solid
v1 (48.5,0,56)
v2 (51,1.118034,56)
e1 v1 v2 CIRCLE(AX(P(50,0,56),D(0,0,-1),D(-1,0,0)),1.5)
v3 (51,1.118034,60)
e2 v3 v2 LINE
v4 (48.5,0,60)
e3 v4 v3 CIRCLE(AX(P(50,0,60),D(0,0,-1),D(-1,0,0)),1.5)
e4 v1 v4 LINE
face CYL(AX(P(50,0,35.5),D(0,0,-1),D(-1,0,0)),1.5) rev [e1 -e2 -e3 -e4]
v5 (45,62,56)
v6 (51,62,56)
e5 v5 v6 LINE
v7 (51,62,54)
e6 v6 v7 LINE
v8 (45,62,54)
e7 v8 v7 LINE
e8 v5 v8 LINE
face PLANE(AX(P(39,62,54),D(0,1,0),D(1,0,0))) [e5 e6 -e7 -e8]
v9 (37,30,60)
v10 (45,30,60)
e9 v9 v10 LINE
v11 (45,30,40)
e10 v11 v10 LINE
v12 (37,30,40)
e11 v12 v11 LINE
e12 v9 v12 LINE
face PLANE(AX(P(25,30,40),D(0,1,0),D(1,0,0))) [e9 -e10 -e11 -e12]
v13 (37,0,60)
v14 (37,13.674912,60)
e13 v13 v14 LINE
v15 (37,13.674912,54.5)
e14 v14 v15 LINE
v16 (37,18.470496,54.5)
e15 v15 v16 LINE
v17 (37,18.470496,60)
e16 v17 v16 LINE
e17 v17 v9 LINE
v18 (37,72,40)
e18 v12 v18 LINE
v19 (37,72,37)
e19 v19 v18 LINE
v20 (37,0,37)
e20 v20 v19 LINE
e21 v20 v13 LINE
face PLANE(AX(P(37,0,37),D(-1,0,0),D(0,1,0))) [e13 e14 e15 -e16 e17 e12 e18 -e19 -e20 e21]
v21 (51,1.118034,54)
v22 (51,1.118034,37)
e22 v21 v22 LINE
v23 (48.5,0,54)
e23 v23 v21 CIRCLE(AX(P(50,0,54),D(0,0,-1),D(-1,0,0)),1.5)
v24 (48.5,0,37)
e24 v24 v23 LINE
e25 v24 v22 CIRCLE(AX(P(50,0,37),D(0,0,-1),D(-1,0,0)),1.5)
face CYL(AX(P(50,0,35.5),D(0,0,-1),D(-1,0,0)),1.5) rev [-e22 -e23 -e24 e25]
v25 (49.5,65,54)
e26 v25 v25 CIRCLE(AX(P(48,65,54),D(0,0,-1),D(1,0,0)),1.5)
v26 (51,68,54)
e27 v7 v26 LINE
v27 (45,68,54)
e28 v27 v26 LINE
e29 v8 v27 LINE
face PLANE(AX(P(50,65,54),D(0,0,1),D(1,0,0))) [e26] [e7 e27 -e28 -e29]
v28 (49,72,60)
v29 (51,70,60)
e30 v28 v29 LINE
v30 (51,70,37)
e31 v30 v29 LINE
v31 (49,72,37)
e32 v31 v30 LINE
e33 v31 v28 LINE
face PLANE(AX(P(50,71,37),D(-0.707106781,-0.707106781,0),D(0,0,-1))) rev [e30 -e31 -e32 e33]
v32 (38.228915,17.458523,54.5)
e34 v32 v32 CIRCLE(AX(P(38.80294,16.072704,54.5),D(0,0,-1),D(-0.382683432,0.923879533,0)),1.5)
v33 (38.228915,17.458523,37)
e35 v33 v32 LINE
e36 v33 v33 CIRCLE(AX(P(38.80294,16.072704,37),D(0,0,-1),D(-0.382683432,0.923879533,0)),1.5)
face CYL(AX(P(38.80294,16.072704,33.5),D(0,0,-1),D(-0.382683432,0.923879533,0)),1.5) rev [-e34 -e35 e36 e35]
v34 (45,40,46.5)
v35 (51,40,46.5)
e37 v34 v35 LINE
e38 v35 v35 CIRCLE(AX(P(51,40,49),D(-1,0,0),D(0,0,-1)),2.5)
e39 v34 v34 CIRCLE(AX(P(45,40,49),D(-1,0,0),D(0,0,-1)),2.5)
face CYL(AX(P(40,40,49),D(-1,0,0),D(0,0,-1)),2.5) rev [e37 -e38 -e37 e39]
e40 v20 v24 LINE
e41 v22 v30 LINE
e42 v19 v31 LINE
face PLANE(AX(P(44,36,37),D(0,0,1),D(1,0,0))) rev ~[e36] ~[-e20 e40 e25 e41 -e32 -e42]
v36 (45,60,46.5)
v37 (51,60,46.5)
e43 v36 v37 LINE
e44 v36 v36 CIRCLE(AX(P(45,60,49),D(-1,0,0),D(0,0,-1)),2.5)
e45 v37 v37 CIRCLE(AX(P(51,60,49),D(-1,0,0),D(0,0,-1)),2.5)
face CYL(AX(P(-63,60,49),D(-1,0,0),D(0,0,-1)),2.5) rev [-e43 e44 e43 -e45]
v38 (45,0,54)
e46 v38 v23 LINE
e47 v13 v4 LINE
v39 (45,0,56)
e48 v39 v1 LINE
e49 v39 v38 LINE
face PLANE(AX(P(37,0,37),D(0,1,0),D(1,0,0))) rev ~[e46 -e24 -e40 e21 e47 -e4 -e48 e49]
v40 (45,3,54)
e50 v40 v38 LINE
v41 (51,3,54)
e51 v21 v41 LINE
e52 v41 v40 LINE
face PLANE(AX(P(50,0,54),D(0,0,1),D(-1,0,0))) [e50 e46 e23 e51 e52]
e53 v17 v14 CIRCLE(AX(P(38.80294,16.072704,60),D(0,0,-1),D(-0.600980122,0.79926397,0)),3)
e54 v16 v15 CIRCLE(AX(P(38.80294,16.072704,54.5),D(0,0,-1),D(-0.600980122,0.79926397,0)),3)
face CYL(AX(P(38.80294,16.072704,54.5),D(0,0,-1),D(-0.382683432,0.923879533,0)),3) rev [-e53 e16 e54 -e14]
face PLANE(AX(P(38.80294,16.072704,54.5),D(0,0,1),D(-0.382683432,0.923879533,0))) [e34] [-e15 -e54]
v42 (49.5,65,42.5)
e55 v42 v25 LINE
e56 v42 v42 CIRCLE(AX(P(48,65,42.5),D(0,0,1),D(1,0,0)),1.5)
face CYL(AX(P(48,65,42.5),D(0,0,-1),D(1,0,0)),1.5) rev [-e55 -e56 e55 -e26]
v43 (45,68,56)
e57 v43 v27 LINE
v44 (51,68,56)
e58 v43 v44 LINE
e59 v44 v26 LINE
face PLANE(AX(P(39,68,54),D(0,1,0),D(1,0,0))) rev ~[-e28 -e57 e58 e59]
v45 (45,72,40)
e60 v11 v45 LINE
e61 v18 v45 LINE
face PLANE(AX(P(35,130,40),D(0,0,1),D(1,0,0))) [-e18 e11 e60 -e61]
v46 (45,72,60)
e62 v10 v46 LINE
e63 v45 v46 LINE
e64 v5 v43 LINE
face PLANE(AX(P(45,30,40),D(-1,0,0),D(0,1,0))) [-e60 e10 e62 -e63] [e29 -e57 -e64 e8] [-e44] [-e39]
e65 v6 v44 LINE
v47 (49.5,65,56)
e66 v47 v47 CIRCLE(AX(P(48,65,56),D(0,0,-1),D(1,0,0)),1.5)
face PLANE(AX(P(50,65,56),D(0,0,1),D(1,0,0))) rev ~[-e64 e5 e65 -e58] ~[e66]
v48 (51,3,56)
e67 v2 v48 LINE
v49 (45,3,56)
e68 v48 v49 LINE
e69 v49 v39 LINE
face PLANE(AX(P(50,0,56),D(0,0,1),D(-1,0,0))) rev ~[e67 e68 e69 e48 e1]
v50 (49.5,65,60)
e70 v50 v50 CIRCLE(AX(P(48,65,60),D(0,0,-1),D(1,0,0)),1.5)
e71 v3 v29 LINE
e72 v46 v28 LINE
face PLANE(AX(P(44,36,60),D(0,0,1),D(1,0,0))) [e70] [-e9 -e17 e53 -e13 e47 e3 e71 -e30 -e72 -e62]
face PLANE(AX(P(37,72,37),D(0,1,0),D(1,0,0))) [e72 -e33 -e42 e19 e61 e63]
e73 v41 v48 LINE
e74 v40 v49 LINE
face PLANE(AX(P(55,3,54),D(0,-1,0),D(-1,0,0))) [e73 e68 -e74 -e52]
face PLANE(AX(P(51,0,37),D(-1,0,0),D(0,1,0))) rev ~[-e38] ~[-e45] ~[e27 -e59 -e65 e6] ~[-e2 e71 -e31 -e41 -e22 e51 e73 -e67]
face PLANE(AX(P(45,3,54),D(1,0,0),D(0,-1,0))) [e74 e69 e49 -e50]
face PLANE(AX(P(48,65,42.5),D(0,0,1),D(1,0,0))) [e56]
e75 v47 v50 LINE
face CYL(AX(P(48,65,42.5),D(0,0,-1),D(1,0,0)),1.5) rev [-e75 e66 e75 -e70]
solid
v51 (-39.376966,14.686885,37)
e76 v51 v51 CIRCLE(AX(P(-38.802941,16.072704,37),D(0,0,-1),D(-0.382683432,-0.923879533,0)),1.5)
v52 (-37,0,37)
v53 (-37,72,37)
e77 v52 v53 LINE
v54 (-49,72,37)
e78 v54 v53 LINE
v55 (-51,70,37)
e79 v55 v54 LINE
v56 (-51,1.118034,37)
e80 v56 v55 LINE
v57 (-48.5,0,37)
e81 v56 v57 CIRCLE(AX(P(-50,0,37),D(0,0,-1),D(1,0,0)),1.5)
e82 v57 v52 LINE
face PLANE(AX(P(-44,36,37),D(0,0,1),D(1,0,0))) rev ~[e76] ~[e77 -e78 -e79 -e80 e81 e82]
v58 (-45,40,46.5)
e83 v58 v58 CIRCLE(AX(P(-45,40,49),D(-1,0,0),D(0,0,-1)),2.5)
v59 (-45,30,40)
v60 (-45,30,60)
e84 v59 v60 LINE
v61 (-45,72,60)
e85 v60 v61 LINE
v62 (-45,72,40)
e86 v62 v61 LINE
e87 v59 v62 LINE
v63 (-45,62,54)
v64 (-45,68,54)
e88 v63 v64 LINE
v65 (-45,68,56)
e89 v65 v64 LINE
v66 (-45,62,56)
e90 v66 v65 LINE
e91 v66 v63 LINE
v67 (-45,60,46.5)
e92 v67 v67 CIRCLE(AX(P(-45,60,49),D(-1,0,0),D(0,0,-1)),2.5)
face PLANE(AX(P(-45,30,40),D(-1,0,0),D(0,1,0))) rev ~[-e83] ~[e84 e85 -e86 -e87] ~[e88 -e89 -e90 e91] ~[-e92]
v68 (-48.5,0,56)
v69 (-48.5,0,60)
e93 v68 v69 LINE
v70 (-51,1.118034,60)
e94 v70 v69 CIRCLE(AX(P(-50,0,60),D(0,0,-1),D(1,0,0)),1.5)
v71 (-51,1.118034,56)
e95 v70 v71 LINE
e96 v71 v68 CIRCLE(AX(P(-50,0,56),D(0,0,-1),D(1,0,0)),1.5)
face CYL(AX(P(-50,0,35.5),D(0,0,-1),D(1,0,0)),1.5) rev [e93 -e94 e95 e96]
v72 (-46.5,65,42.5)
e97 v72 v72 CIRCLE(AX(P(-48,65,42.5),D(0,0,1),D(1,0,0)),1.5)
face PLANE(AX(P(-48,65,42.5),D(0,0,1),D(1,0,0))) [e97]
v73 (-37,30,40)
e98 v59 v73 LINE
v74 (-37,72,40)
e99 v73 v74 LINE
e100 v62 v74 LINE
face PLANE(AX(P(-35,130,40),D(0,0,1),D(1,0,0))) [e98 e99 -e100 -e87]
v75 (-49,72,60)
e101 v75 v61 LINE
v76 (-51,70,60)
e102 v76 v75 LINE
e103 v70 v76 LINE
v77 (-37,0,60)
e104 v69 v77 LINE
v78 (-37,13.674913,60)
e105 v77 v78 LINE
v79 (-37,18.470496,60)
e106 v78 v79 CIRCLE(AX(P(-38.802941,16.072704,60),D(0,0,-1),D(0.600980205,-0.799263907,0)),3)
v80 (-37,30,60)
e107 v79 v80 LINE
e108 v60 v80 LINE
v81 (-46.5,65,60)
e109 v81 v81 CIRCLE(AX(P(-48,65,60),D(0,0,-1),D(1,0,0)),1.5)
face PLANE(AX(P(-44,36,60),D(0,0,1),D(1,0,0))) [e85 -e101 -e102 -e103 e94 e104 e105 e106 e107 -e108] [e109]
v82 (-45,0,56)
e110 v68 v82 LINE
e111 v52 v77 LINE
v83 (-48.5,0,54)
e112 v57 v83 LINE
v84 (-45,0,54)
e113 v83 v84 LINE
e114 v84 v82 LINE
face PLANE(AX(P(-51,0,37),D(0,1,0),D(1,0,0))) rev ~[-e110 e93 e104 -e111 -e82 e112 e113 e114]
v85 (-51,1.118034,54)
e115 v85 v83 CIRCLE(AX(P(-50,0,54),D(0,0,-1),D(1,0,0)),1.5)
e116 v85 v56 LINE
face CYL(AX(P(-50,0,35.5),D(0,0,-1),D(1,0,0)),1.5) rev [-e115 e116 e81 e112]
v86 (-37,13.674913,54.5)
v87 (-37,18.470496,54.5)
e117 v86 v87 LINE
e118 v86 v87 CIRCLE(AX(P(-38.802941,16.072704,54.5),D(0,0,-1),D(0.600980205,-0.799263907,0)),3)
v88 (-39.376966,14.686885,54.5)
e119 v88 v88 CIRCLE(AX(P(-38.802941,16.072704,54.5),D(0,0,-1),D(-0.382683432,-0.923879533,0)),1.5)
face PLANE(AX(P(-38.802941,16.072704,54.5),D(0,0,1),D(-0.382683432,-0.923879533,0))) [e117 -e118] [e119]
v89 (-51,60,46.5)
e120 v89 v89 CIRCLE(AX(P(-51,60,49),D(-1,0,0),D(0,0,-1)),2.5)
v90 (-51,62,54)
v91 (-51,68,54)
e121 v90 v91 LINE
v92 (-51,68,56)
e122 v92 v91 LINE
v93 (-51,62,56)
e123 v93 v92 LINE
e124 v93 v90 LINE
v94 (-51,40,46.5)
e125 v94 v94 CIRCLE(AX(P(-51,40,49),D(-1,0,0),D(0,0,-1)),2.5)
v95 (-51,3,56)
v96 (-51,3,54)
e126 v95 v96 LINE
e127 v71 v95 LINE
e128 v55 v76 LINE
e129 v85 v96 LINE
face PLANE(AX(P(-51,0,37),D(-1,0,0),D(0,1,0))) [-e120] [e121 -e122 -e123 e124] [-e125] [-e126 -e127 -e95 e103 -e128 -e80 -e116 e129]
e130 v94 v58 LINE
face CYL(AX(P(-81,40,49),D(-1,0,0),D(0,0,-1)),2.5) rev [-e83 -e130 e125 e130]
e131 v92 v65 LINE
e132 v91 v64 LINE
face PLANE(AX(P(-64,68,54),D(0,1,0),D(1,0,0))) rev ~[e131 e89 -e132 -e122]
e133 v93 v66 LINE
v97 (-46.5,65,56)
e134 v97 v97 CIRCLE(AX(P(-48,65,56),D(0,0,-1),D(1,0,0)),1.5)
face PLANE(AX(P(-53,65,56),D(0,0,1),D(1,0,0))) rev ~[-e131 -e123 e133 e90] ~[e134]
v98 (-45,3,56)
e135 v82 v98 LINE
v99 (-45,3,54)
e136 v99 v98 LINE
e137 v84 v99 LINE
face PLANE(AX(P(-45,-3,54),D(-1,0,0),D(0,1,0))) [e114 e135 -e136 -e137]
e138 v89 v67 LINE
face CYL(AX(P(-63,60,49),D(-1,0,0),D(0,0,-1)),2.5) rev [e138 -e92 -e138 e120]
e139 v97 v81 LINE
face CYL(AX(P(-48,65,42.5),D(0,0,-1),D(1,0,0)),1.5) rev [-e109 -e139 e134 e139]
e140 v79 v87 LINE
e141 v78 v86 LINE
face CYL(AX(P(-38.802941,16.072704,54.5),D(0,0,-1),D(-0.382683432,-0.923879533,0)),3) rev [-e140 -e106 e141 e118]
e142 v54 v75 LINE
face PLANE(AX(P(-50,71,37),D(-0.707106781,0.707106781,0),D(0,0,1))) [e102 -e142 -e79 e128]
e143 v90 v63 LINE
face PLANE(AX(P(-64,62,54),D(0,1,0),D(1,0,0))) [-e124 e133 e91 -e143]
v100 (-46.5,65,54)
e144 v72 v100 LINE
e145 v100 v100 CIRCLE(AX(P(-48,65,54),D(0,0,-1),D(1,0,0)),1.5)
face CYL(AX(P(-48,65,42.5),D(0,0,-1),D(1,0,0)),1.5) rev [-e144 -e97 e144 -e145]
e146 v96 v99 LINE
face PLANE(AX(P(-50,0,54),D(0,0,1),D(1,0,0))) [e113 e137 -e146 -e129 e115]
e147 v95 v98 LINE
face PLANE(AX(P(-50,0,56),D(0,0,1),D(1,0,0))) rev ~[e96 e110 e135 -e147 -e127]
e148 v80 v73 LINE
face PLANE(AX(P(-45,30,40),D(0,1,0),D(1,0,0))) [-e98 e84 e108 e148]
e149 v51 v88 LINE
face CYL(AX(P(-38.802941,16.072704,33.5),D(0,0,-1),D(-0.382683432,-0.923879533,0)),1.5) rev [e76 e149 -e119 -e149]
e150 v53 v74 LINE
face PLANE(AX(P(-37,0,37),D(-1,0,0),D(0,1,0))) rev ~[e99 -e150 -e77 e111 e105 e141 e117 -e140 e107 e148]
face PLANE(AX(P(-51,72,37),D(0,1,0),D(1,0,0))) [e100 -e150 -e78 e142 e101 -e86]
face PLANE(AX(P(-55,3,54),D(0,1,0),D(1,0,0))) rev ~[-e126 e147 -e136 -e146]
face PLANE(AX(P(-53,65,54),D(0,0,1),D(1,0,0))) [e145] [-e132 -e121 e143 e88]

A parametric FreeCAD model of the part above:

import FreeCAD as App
import Part
import Sketcher

V = App.Vector
Q = App.Units.Quantity


def edges_at(feature, points):
    """Names of the edges that pass closest to the given points."""
    edges = feature.Shape.Edges
    near = lambda p: min(range(len(edges)), key=lambda i: edges[i].distToShape(Part.Vertex(*p))[0])
    return sorted({f"Edge{near(p) + 1}" for p in points})


def add_polygon(sketch, points):
    """Adds a closed chain of lines whose ends are joined by coincident constraints."""
    first, n = sketch.GeometryCount, len(points)
    for a, b in zip(points, points[1:] + points[:1]):
        sketch.addGeometry(Part.LineSegment(App.Vector(*a, 0), App.Vector(*b, 0)), False)
    for i in range(n):
        sketch.addConstraint(Sketcher.Constraint("Coincident", first + i, 2, first + (i + 1) % n, 1))

doc = App.newDocument("Part")
body = doc.addObject("PartDesign::Body", "Body")

# Sketch on XY plane
sketch1 = doc.addObject("Sketcher::SketchObject", "Sketch")
body.addObject(sketch1)
sketch1.AttachmentSupport = (doc.XY_Plane, [""])
sketch1.MapMode = "FlatFace"
sketch1.AttachmentOffset = App.Placement(V(0, 0, 54), App.Rotation())
add_polygon(sketch1, [(55, -3), (55, 3), (45, 3), (45, -3)])  # lines 0-3
sketch1.addConstraint(Sketcher.Constraint("Vertical", 0))
sketch1.addConstraint(Sketcher.Constraint("Horizontal", 1))
sketch1.addConstraint(Sketcher.Constraint("Vertical", 2))
sketch1.addConstraint(Sketcher.Constraint("Horizontal", 3))
sketch1.addConstraint(Sketcher.Constraint("DistanceX", 1, 2, 1, 1, Q("10 mm")))
sketch1.addConstraint(Sketcher.Constraint("DistanceY", 0, 1, 0, 2, Q("6 mm")))
sketch1.addConstraint(Sketcher.Constraint("DistanceX", -1, 1, 0, 2, Q("55 mm")))
sketch1.addConstraint(Sketcher.Constraint("DistanceY", -1, 1, 0, 2, Q("3 mm")))
pad1 = doc.addObject("PartDesign::Pad", "Pad")
body.addObject(pad1)
pad1.Profile = sketch1
pad1.Length = 2
body2 = doc.addObject("PartDesign::Body", "Body001")

# Sketch on XY plane
sketch2 = doc.addObject("Sketcher::SketchObject", "Sketch001")
body2.addObject(sketch2)
sketch2.AttachmentSupport = (doc.getObject("XY_Plane001"), [""])
sketch2.MapMode = "FlatFace"
sketch2.AttachmentOffset = App.Placement(V(0, 0, 54), App.Rotation())
add_polygon(sketch2, [(-3, -55), (3, -55), (3, -45), (-3, -45)])  # lines 0-3
sketch2.addConstraint(Sketcher.Constraint("Horizontal", 0))
sketch2.addConstraint(Sketcher.Constraint("Vertical", 1))
sketch2.addConstraint(Sketcher.Constraint("Horizontal", 2))
sketch2.addConstraint(Sketcher.Constraint("Vertical", 3))
sketch2.addConstraint(Sketcher.Constraint("DistanceX", 0, 1, 0, 2, Q("6 mm")))
sketch2.addConstraint(Sketcher.Constraint("DistanceY", 1, 1, 1, 2, Q("10 mm")))
sketch2.addConstraint(Sketcher.Constraint("DistanceX", -1, 1, 0, 2, Q("3 mm")))
sketch2.addConstraint(Sketcher.Constraint("DistanceY", 0, 2, -1, 1, Q("55 mm")))
pad2 = doc.addObject("PartDesign::Pad", "Pad001")
body2.addObject(pad2)
pad2.Profile = sketch2
pad2.Length = 2
body3 = doc.addObject("PartDesign::Body", "Body002")

# Sketch on XY plane
sketch3 = doc.addObject("Sketcher::SketchObject", "Sketch002")
body3.addObject(sketch3)
sketch3.AttachmentSupport = (doc.getObject("XY_Plane002"), [""])
sketch3.MapMode = "FlatFace"
sketch3.AttachmentOffset = App.Placement(V(0, 0, 54), App.Rotation())
add_polygon(sketch3, [(-55, 3), (-55, -3), (-45, -3), (-45, 3)])  # lines 0-3
sketch3.addConstraint(Sketcher.Constraint("Vertical", 0))
sketch3.addConstraint(Sketcher.Constraint("Horizontal", 1))
sketch3.addConstraint(Sketcher.Constraint("Vertical", 2))
sketch3.addConstraint(Sketcher.Constraint("Horizontal", 3))
sketch3.addConstraint(Sketcher.Constraint("DistanceX", 1, 1, 1, 2, Q("10 mm")))
sketch3.addConstraint(Sketcher.Constraint("DistanceY", 0, 2, 0, 1, Q("6 mm")))
sketch3.addConstraint(Sketcher.Constraint("DistanceX", 0, 2, -1, 1, Q("55 mm")))
sketch3.addConstraint(Sketcher.Constraint("DistanceY", 0, 2, -1, 1, Q("3 mm")))
pad3 = doc.addObject("PartDesign::Pad", "Pad002")
body3.addObject(pad3)
pad3.Profile = sketch3
pad3.Length = 2
body4 = doc.addObject("PartDesign::Body", "Body003")
body4.AllowCompound = True

# Sketch on XY plane
sketch4 = doc.addObject("Sketcher::SketchObject", "Sketch003")
body4.addObject(sketch4)
sketch4.AttachmentSupport = (doc.getObject("XY_Plane003"), [""])
sketch4.MapMode = "FlatFace"
sketch4.AttachmentOffset = App.Placement(V(0, 0, 54), App.Rotation())
add_polygon(sketch4, [(3, 55), (-3, 55), (-3, 45), (3, 45)])  # lines 0-3
sketch4.addConstraint(Sketcher.Constraint("Horizontal", 0))
sketch4.addConstraint(Sketcher.Constraint("Vertical", 1))
sketch4.addConstraint(Sketcher.Constraint("Horizontal", 2))
sketch4.addConstraint(Sketcher.Constraint("Vertical", 3))
sketch4.addConstraint(Sketcher.Constraint("DistanceX", 0, 2, 0, 1, Q("6 mm")))
sketch4.addConstraint(Sketcher.Constraint("DistanceY", 1, 2, 1, 1, Q("10 mm")))
sketch4.addConstraint(Sketcher.Constraint("DistanceX", 0, 2, -1, 1, Q("3 mm")))
sketch4.addConstraint(Sketcher.Constraint("DistanceY", -1, 1, 0, 2, Q("55 mm")))
pad4 = doc.addObject("PartDesign::Pad", "Pad003")
body4.addObject(pad4)
pad4.Profile = sketch4
pad4.Length = 2
doc.recompute()

boolean = doc.addObject("PartDesign::Boolean", "Boolean")
body4.addObject(boolean)
boolean.Type = "Fuse"
boolean.addObjects([body])
doc.recompute()

boolean2 = doc.addObject("PartDesign::Boolean", "Boolean001")
body4.addObject(boolean2)
boolean2.Type = "Fuse"
boolean2.addObjects([body2])
doc.recompute()

boolean3 = doc.addObject("PartDesign::Boolean", "Boolean002")
body4.addObject(boolean3)
boolean3.Type = "Fuse"
boolean3.addObjects([body3])
body5 = doc.addObject("PartDesign::Body", "Body004")

# Sketch on XY plane
sketch5 = doc.addObject("Sketcher::SketchObject", "Sketch004")
body5.addObject(sketch5)
sketch5.AttachmentSupport = (doc.getObject("XY_Plane004"), [""])
sketch5.MapMode = "FlatFace"
sketch5.AttachmentOffset = App.Placement(V(0, 0, 35.5), App.Rotation())
sketch5.addGeometry(Part.Circle(V(50, 0, 0), V(0, 0, 1), 1.5), False)
sketch5.addConstraint(Sketcher.Constraint("PointOnObject", 0, 3, -1))
sketch5.addConstraint(Sketcher.Constraint("Diameter", 0, Q("3 mm")))
sketch5.addConstraint(Sketcher.Constraint("DistanceX", -1, 1, 0, 3, Q("50 mm")))
pad5 = doc.addObject("PartDesign::Pad", "Pad004")
body5.addObject(pad5)
pad5.Profile = sketch5
pad5.Length = 30
body6 = doc.addObject("PartDesign::Body", "Body005")

# Sketch on XY plane
sketch6 = doc.addObject("Sketcher::SketchObject", "Sketch005")
body6.addObject(sketch6)
sketch6.AttachmentSupport = (doc.getObject("XY_Plane005"), [""])
sketch6.MapMode = "FlatFace"
sketch6.AttachmentOffset = App.Placement(V(0, 0, 35.5), App.Rotation())
sketch6.addGeometry(Part.Circle(V(0, -50, 0), V(0, 0, 1), 1.5), False)
sketch6.addConstraint(Sketcher.Constraint("PointOnObject", 0, 3, -2))
sketch6.addConstraint(Sketcher.Constraint("Diameter", 0, Q("3 mm")))
sketch6.addConstraint(Sketcher.Constraint("DistanceY", 0, 3, -1, 1, Q("50 mm")))
pad6 = doc.addObject("PartDesign::Pad", "Pad005")
body6.addObject(pad6)
pad6.Profile = sketch6
pad6.Length = 30
body7 = doc.addObject("PartDesign::Body", "Body006")

# Sketch on XY plane
sketch7 = doc.addObject("Sketcher::SketchObject", "Sketch006")
body7.addObject(sketch7)
sketch7.AttachmentSupport = (doc.getObject("XY_Plane006"), [""])
sketch7.MapMode = "FlatFace"
sketch7.AttachmentOffset = App.Placement(V(0, 0, 35.5), App.Rotation())
sketch7.addGeometry(Part.Circle(V(-50, 0, 0), V(0, 0, 1), 1.5), False)
sketch7.addConstraint(Sketcher.Constraint("PointOnObject", 0, 3, -1))
sketch7.addConstraint(Sketcher.Constraint("Diameter", 0, Q("3 mm")))
sketch7.addConstraint(Sketcher.Constraint("DistanceX", 0, 3, -1, 1, Q("50 mm")))
pad7 = doc.addObject("PartDesign::Pad", "Pad006")
body7.addObject(pad7)
pad7.Profile = sketch7
pad7.Length = 30
body8 = doc.addObject("PartDesign::Body", "Body007")
body8.AllowCompound = True

# Sketch on XY plane
sketch8 = doc.addObject("Sketcher::SketchObject", "Sketch007")
body8.addObject(sketch8)
sketch8.AttachmentSupport = (doc.getObject("XY_Plane007"), [""])
sketch8.MapMode = "FlatFace"
sketch8.AttachmentOffset = App.Placement(V(0, 0, 35.5), App.Rotation())
sketch8.addGeometry(Part.Circle(V(0, 50, 0), V(0, 0, 1), 1.5), False)
sketch8.addConstraint(Sketcher.Constraint("PointOnObject", 0, 3, -2))
sketch8.addConstraint(Sketcher.Constraint("Diameter", 0, Q("3 mm")))
sketch8.addConstraint(Sketcher.Constraint("DistanceY", -1, 1, 0, 3, Q("50 mm")))
pad8 = doc.addObject("PartDesign::Pad", "Pad007")
body8.addObject(pad8)
pad8.Profile = sketch8
pad8.Length = 30
doc.recompute()

boolean4 = doc.addObject("PartDesign::Boolean", "Boolean003")
body8.addObject(boolean4)
boolean4.Type = "Fuse"
boolean4.addObjects([body5])
doc.recompute()

boolean5 = doc.addObject("PartDesign::Boolean", "Boolean004")
body8.addObject(boolean5)
boolean5.Type = "Fuse"
boolean5.addObjects([body6])
doc.recompute()

boolean6 = doc.addObject("PartDesign::Boolean", "Boolean005")
body8.addObject(boolean6)
boolean6.Type = "Fuse"
boolean6.addObjects([body7])
body9 = doc.addObject("PartDesign::Body", "Body008")

# Sketch on XY plane
sketch9 = doc.addObject("Sketcher::SketchObject", "Sketch008")
body9.addObject(sketch9)
sketch9.AttachmentSupport = (doc.getObject("XY_Plane008"), [""])
sketch9.MapMode = "FlatFace"
sketch9.addGeometry(Part.Circle(V(0, 0, 0), V(0, 0, 1), 1.5), False)
sketch9.addConstraint(Sketcher.Constraint("Coincident", 0, 3, -1, 1))
sketch9.addConstraint(Sketcher.Constraint("Diameter", 0, Q("3 mm")))
pad9 = doc.addObject("PartDesign::Pad", "Pad008")
body9.addObject(pad9)
pad9.Profile = sketch9
pad9.Length = 40
body10 = doc.addObject("PartDesign::Body", "Body009")
doc.recompute()

body9.Placement = App.Placement(V(29.698485, -29.698485, 33.5), App.Rotation(V(0, 0, 1), 45))
boolean7 = doc.addObject("PartDesign::Boolean", "Boolean006")
body10.addObject(boolean7)
boolean7.Type = "Fuse"
boolean7.addObjects([body9])
body11 = doc.addObject("PartDesign::Body", "Body010")

# Sketch on XY plane
sketch10 = doc.addObject("Sketcher::SketchObject", "Sketch009")
body11.addObject(sketch10)
sketch10.AttachmentSupport = (doc.getObject("XY_Plane010"), [""])
sketch10.MapMode = "FlatFace"
sketch10.AttachmentOffset = App.Placement(V(0, 0, 33.5), App.Rotation())
sketch10.addGeometry(Part.Circle(V(42, 0, 0), V(0, 0, 1), 1.5), False)
sketch10.addConstraint(Sketcher.Constraint("PointOnObject", 0, 3, -1))
sketch10.addConstraint(Sketcher.Constraint("Diameter", 0, Q("3 mm")))
sketch10.addConstraint(Sketcher.Constraint("DistanceX", -1, 1, 0, 3, Q("42 mm")))
pad10 = doc.addObject("PartDesign::Pad", "Pad009")
body11.addObject(pad10)
pad10.Profile = sketch10
pad10.Length = 40
body12 = doc.addObject("PartDesign::Body", "Body011")

# Sketch on XY plane
sketch11 = doc.addObject("Sketcher::SketchObject", "Sketch010")
body12.addObject(sketch11)
sketch11.AttachmentSupport = (doc.getObject("XY_Plane011"), [""])
sketch11.MapMode = "FlatFace"
sketch11.addGeometry(Part.Circle(V(0, 0, 0), V(0, 0, 1), 1.5), False)
sketch11.addConstraint(Sketcher.Constraint("Coincident", 0, 3, -1, 1))
sketch11.addConstraint(Sketcher.Constraint("Diameter", 0, Q("3 mm")))
pad11 = doc.addObject("PartDesign::Pad", "Pad010")
body12.addObject(pad11)
pad11.Profile = sketch11
pad11.Length = 40
body13 = doc.addObject("PartDesign::Body", "Body012")
doc.recompute()

body12.Placement = App.Placement(V(29.698485, 29.698485, 33.5), App.Rotation(V(0, 0, 1), 135))
boolean8 = doc.addObject("PartDesign::Boolean", "Boolean007")
body13.addObject(boolean8)
boolean8.Type = "Fuse"
boolean8.addObjects([body12])
body14 = doc.addObject("PartDesign::Body", "Body013")

# Sketch on XY plane
sketch12 = doc.addObject("Sketcher::SketchObject", "Sketch011")
body14.addObject(sketch12)
sketch12.AttachmentSupport = (doc.getObject("XY_Plane013"), [""])
sketch12.MapMode = "FlatFace"
sketch12.AttachmentOffset = App.Placement(V(0, 0, 33.5), App.Rotation())
sketch12.addGeometry(Part.Circle(V(0, 42, 0), V(0, 0, 1), 1.5), False)
sketch12.addConstraint(Sketcher.Constraint("PointOnObject", 0, 3, -2))
sketch12.addConstraint(Sketcher.Constraint("Diameter", 0, Q("3 mm")))
sketch12.addConstraint(Sketcher.Constraint("DistanceY", -1, 1, 0, 3, Q("42 mm")))
pad12 = doc.addObject("PartDesign::Pad", "Pad011")
body14.addObject(pad12)
pad12.Profile = sketch12
pad12.Length = 40
body15 = doc.addObject("PartDesign::Body", "Body014")

# Sketch on XY plane
sketch13 = doc.addObject("Sketcher::SketchObject", "Sketch012")
body15.addObject(sketch13)
sketch13.AttachmentSupport = (doc.getObject("XY_Plane014"), [""])
sketch13.MapMode = "FlatFace"
sketch13.addGeometry(Part.Circle(V(0, 0, 0), V(0, 0, 1), 1.5), False)
sketch13.addConstraint(Sketcher.Constraint("Coincident", 0, 3, -1, 1))
sketch13.addConstraint(Sketcher.Constraint("Diameter", 0, Q("3 mm")))
pad13 = doc.addObject("PartDesign::Pad", "Pad012")
body15.addObject(pad13)
pad13.Profile = sketch13
pad13.Length = 40
body16 = doc.addObject("PartDesign::Body", "Body015")
doc.recompute()

body15.Placement = App.Placement(V(-29.698485, 29.698485, 33.5), App.Rotation(V(0, 0, 1), 225))
boolean9 = doc.addObject("PartDesign::Boolean", "Boolean008")
body16.addObject(boolean9)
boolean9.Type = "Fuse"
boolean9.addObjects([body15])
body17 = doc.addObject("PartDesign::Body", "Body016")

# Sketch on XY plane
sketch14 = doc.addObject("Sketcher::SketchObject", "Sketch013")
body17.addObject(sketch14)
sketch14.AttachmentSupport = (doc.getObject("XY_Plane016"), [""])
sketch14.MapMode = "FlatFace"
sketch14.AttachmentOffset = App.Placement(V(0, 0, 33.5), App.Rotation())
sketch14.addGeometry(Part.Circle(V(-42, 0, 0), V(0, 0, 1), 1.5), False)
sketch14.addConstraint(Sketcher.Constraint("PointOnObject", 0, 3, -1))
sketch14.addConstraint(Sketcher.Constraint("Diameter", 0, Q("3 mm")))
sketch14.addConstraint(Sketcher.Constraint("DistanceX", 0, 3, -1, 1, Q("42 mm")))
pad14 = doc.addObject("PartDesign::Pad", "Pad013")
body17.addObject(pad14)
pad14.Profile = sketch14
pad14.Length = 40
body18 = doc.addObject("PartDesign::Body", "Body017")

# Sketch on XY plane
sketch15 = doc.addObject("Sketcher::SketchObject", "Sketch014")
body18.addObject(sketch15)
sketch15.AttachmentSupport = (doc.getObject("XY_Plane017"), [""])
sketch15.MapMode = "FlatFace"
sketch15.addGeometry(Part.Circle(V(0, 0, 0), V(0, 0, 1), 1.5), False)
sketch15.addConstraint(Sketcher.Constraint("Coincident", 0, 3, -1, 1))
sketch15.addConstraint(Sketcher.Constraint("Diameter", 0, Q("3 mm")))
pad15 = doc.addObject("PartDesign::Pad", "Pad014")
body18.addObject(pad15)
pad15.Profile = sketch15
pad15.Length = 40
body19 = doc.addObject("PartDesign::Body", "Body018")
doc.recompute()

body18.Placement = App.Placement(V(-29.698485, -29.698485, 33.5), App.Rotation(V(0, 0, -1), 45))
boolean10 = doc.addObject("PartDesign::Boolean", "Boolean009")
body19.addObject(boolean10)
boolean10.Type = "Fuse"
boolean10.addObjects([body18])
body20 = doc.addObject("PartDesign::Body", "Body019")
body20.AllowCompound = True

# Sketch on XY plane
sketch16 = doc.addObject("Sketcher::SketchObject", "Sketch015")
body20.addObject(sketch16)
sketch16.AttachmentSupport = (doc.getObject("XY_Plane019"), [""])
sketch16.MapMode = "FlatFace"
sketch16.AttachmentOffset = App.Placement(V(0, 0, 33.5), App.Rotation())
sketch16.addGeometry(Part.Circle(V(0, -42, 0), V(0, 0, 1), 1.5), False)
sketch16.addConstraint(Sketcher.Constraint("PointOnObject", 0, 3, -2))
sketch16.addConstraint(Sketcher.Constraint("Diameter", 0, Q("3 mm")))
sketch16.addConstraint(Sketcher.Constraint("DistanceY", 0, 3, -1, 1, Q("42 mm")))
pad16 = doc.addObject("PartDesign::Pad", "Pad015")
body20.addObject(pad16)
pad16.Profile = sketch16
pad16.Length = 40
doc.recompute()

boolean11 = doc.addObject("PartDesign::Boolean", "Boolean010")
body20.addObject(boolean11)
boolean11.Type = "Fuse"
boolean11.addObjects([body10])
doc.recompute()

boolean12 = doc.addObject("PartDesign::Boolean", "Boolean011")
body20.addObject(boolean12)
boolean12.Type = "Fuse"
boolean12.addObjects([body11])
doc.recompute()

boolean13 = doc.addObject("PartDesign::Boolean", "Boolean012")
body20.addObject(boolean13)
boolean13.Type = "Fuse"
boolean13.addObjects([body13])
doc.recompute()

boolean14 = doc.addObject("PartDesign::Boolean", "Boolean013")
body20.addObject(boolean14)
boolean14.Type = "Fuse"
boolean14.addObjects([body14])
doc.recompute()

boolean15 = doc.addObject("PartDesign::Boolean", "Boolean014")
body20.addObject(boolean15)
boolean15.Type = "Fuse"
boolean15.addObjects([body16])
doc.recompute()

boolean16 = doc.addObject("PartDesign::Boolean", "Boolean015")
body20.addObject(boolean16)
boolean16.Type = "Fuse"
boolean16.addObjects([body17])
doc.recompute()

boolean17 = doc.addObject("PartDesign::Boolean", "Boolean016")
body20.addObject(boolean17)
boolean17.Type = "Fuse"
boolean17.addObjects([body19])
body21 = doc.addObject("PartDesign::Body", "Body020")
body21.AllowCompound = True
doc.recompute()

body20.Placement = App.Placement(V(0, 0, 0), App.Rotation(V(0, 0, 1), 22.5))
boolean18 = doc.addObject("PartDesign::Boolean", "Boolean017")
body21.addObject(boolean18)
boolean18.Type = "Fuse"
boolean18.addObjects([body20])
body22 = doc.addObject("PartDesign::Body", "Body021")

# Sketch on XY plane
sketch17 = doc.addObject("Sketcher::SketchObject", "Sketch016")
body22.addObject(sketch17)
sketch17.AttachmentSupport = (doc.getObject("XY_Plane021"), [""])
sketch17.MapMode = "FlatFace"
sketch17.addGeometry(Part.Circle(V(0, 0, 0), V(0, 0, 1), 3), False)
sketch17.addConstraint(Sketcher.Constraint("Coincident", 0, 3, -1, 1))
sketch17.addConstraint(Sketcher.Constraint("Diameter", 0, Q("6 mm")))
pad17 = doc.addObject("PartDesign::Pad", "Pad016")
body22.addObject(pad17)
pad17.Profile = sketch17
pad17.Length = 6
body23 = doc.addObject("PartDesign::Body", "Body022")
doc.recompute()

body22.Placement = App.Placement(V(29.698485, -29.698485, 33.5), App.Rotation(V(0, 0, 1), 45))
boolean19 = doc.addObject("PartDesign::Boolean", "Boolean018")
body23.addObject(boolean19)
boolean19.Type = "Fuse"
boolean19.addObjects([body22])
body24 = doc.addObject("PartDesign::Body", "Body023")

# Sketch on XY plane
sketch18 = doc.addObject("Sketcher::SketchObject", "Sketch017")
body24.addObject(sketch18)
sketch18.AttachmentSupport = (doc.getObject("XY_Plane023"), [""])
sketch18.MapMode = "FlatFace"
sketch18.AttachmentOffset = App.Placement(V(0, 0, 33.5), App.Rotation())
sketch18.addGeometry(Part.Circle(V(42, 0, 0), V(0, 0, 1), 3), False)
sketch18.addConstraint(Sketcher.Constraint("PointOnObject", 0, 3, -1))
sketch18.addConstraint(Sketcher.Constraint("Diameter", 0, Q("6 mm")))
sketch18.addConstraint(Sketcher.Constraint("DistanceX", -1, 1, 0, 3, Q("42 mm")))
pad18 = doc.addObject("PartDesign::Pad", "Pad017")
body24.addObject(pad18)
pad18.Profile = sketch18
pad18.Length = 6
body25 = doc.addObject("PartDesign::Body", "Body024")

# Sketch on XY plane
sketch19 = doc.addObject("Sketcher::SketchObject", "Sketch018")
body25.addObject(sketch19)
sketch19.AttachmentSupport = (doc.getObject("XY_Plane024"), [""])
sketch19.MapMode = "FlatFace"
sketch19.addGeometry(Part.Circle(V(0, 0, 0), V(0, 0, 1), 3), False)
sketch19.addConstraint(Sketcher.Constraint("Coincident", 0, 3, -1, 1))
sketch19.addConstraint(Sketcher.Constraint("Diameter", 0, Q("6 mm")))
pad19 = doc.addObject("PartDesign::Pad", "Pad018")
body25.addObject(pad19)
pad19.Profile = sketch19
pad19.Length = 6
body26 = doc.addObject("PartDesign::Body", "Body025")
doc.recompute()

body25.Placement = App.Placement(V(29.698485, 29.698485, 33.5), App.Rotation(V(0, 0, 1), 135))
boolean20 = doc.addObject("PartDesign::Boolean", "Boolean019")
body26.addObject(boolean20)
boolean20.Type = "Fuse"
boolean20.addObjects([body25])
body27 = doc.addObject("PartDesign::Body", "Body026")

# Sketch on XY plane
sketch20 = doc.addObject("Sketcher::SketchObject", "Sketch019")
body27.addObject(sketch20)
sketch20.AttachmentSupport = (doc.getObject("XY_Plane026"), [""])
sketch20.MapMode = "FlatFace"
sketch20.AttachmentOffset = App.Placement(V(0, 0, 33.5), App.Rotation())
sketch20.addGeometry(Part.Circle(V(0, 42, 0), V(0, 0, 1), 3), False)
sketch20.addConstraint(Sketcher.Constraint("PointOnObject", 0, 3, -2))
sketch20.addConstraint(Sketcher.Constraint("Diameter", 0, Q("6 mm")))
sketch20.addConstraint(Sketcher.Constraint("DistanceY", -1, 1, 0, 3, Q("42 mm")))
pad20 = doc.addObject("PartDesign::Pad", "Pad019")
body27.addObject(pad20)
pad20.Profile = sketch20
pad20.Length = 6
body28 = doc.addObject("PartDesign::Body", "Body027")

# Sketch on XY plane
sketch21 = doc.addObject("Sketcher::SketchObject", "Sketch020")
body28.addObject(sketch21)
sketch21.AttachmentSupport = (doc.getObject("XY_Plane027"), [""])
sketch21.MapMode = "FlatFace"
sketch21.addGeometry(Part.Circle(V(0, 0, 0), V(0, 0, 1), 3), False)
sketch21.addConstraint(Sketcher.Constraint("Coincident", 0, 3, -1, 1))
sketch21.addConstraint(Sketcher.Constraint("Diameter", 0, Q("6 mm")))
pad21 = doc.addObject("PartDesign::Pad", "Pad020")
body28.addObject(pad21)
pad21.Profile = sketch21
pad21.Length = 6
body29 = doc.addObject("PartDesign::Body", "Body028")
doc.recompute()

body28.Placement = App.Placement(V(-29.698485, 29.698485, 33.5), App.Rotation(V(0, 0, 1), 225))
boolean21 = doc.addObject("PartDesign::Boolean", "Boolean020")
body29.addObject(boolean21)
boolean21.Type = "Fuse"
boolean21.addObjects([body28])
body30 = doc.addObject("PartDesign::Body", "Body029")

# Sketch on XY plane
sketch22 = doc.addObject("Sketcher::SketchObject", "Sketch021")
body30.addObject(sketch22)
sketch22.AttachmentSupport = (doc.getObject("XY_Plane029"), [""])
sketch22.MapMode = "FlatFace"
sketch22.AttachmentOffset = App.Placement(V(0, 0, 33.5), App.Rotation())
sketch22.addGeometry(Part.Circle(V(-42, 0, 0), V(0, 0, 1), 3), False)
sketch22.addConstraint(Sketcher.Constraint("PointOnObject", 0, 3, -1))
sketch22.addConstraint(Sketcher.Constraint("Diameter", 0, Q("6 mm")))
sketch22.addConstraint(Sketcher.Constraint("DistanceX", 0, 3, -1, 1, Q("42 mm")))
pad22 = doc.addObject("PartDesign::Pad", "Pad021")
body30.addObject(pad22)
pad22.Profile = sketch22
pad22.Length = 6
body31 = doc.addObject("PartDesign::Body", "Body030")

# Sketch on XY plane
sketch23 = doc.addObject("Sketcher::SketchObject", "Sketch022")
body31.addObject(sketch23)
sketch23.AttachmentSupport = (doc.getObject("XY_Plane030"), [""])
sketch23.MapMode = "FlatFace"
sketch23.addGeometry(Part.Circle(V(0, 0, 0), V(0, 0, 1), 3), False)
sketch23.addConstraint(Sketcher.Constraint("Coincident", 0, 3, -1, 1))
sketch23.addConstraint(Sketcher.Constraint("Diameter", 0, Q("6 mm")))
pad23 = doc.addObject("PartDesign::Pad", "Pad022")
body31.addObject(pad23)
pad23.Profile = sketch23
pad23.Length = 6
body32 = doc.addObject("PartDesign::Body", "Body031")
doc.recompute()

body31.Placement = App.Placement(V(-29.698485, -29.698485, 33.5), App.Rotation(V(0, 0, -1), 45))
boolean22 = doc.addObject("PartDesign::Boolean", "Boolean021")
body32.addObject(boolean22)
boolean22.Type = "Fuse"
boolean22.addObjects([body31])
body33 = doc.addObject("PartDesign::Body", "Body032")
body33.AllowCompound = True

# Sketch on XY plane
sketch24 = doc.addObject("Sketcher::SketchObject", "Sketch023")
body33.addObject(sketch24)
sketch24.AttachmentSupport = (doc.getObject("XY_Plane032"), [""])
sketch24.MapMode = "FlatFace"
sketch24.AttachmentOffset = App.Placement(V(0, 0, 33.5), App.Rotation())
sketch24.addGeometry(Part.Circle(V(0, -42, 0), V(0, 0, 1), 3), False)
sketch24.addConstraint(Sketcher.Constraint("PointOnObject", 0, 3, -2))
sketch24.addConstraint(Sketcher.Constraint("Diameter", 0, Q("6 mm")))
sketch24.addConstraint(Sketcher.Constraint("DistanceY", 0, 3, -1, 1, Q("42 mm")))
pad24 = doc.addObject("PartDesign::Pad", "Pad023")
body33.addObject(pad24)
pad24.Profile = sketch24
pad24.Length = 6
doc.recompute()

boolean23 = doc.addObject("PartDesign::Boolean", "Boolean022")
body33.addObject(boolean23)
boolean23.Type = "Fuse"
boolean23.addObjects([body23])
doc.recompute()

boolean24 = doc.addObject("PartDesign::Boolean", "Boolean023")
body33.addObject(boolean24)
boolean24.Type = "Fuse"
boolean24.addObjects([body24])
doc.recompute()

boolean25 = doc.addObject("PartDesign::Boolean", "Boolean024")
body33.addObject(boolean25)
boolean25.Type = "Fuse"
boolean25.addObjects([body26])
doc.recompute()

boolean26 = doc.addObject("PartDesign::Boolean", "Boolean025")
body33.addObject(boolean26)
boolean26.Type = "Fuse"
boolean26.addObjects([body27])
doc.recompute()

boolean27 = doc.addObject("PartDesign::Boolean", "Boolean026")
body33.addObject(boolean27)
boolean27.Type = "Fuse"
boolean27.addObjects([body29])
doc.recompute()

boolean28 = doc.addObject("PartDesign::Boolean", "Boolean027")
body33.addObject(boolean28)
boolean28.Type = "Fuse"
boolean28.addObjects([body30])
doc.recompute()

boolean29 = doc.addObject("PartDesign::Boolean", "Boolean028")
body33.addObject(boolean29)
boolean29.Type = "Fuse"
boolean29.addObjects([body32])
body34 = doc.addObject("PartDesign::Body", "Body033")
body34.AllowCompound = True
doc.recompute()

body33.Placement = App.Placement(V(0, 0, 21), App.Rotation(V(0, 0, 1), 22.5))
boolean30 = doc.addObject("PartDesign::Boolean", "Boolean029")
body34.addObject(boolean30)
boolean30.Type = "Fuse"
boolean30.addObjects([body33])
body35 = doc.addObject("PartDesign::Body", "Body034")

# Sketch on XY plane
sketch25 = doc.addObject("Sketcher::SketchObject", "Sketch024")
body35.addObject(sketch25)
sketch25.AttachmentSupport = (doc.getObject("XY_Plane034"), [""])
sketch25.MapMode = "FlatFace"
sketch25.AttachmentOffset = App.Placement(V(0, 0, 54), App.Rotation())
add_polygon(sketch25, [(39, 68), (39, 62), (61, 62), (61, 68)])  # lines 0-3
sketch25.addConstraint(Sketcher.Constraint("Vertical", 0))
sketch25.addConstraint(Sketcher.Constraint("Horizontal", 1))
sketch25.addConstraint(Sketcher.Constraint("Vertical", 2))
sketch25.addConstraint(Sketcher.Constraint("Horizontal", 3))
sketch25.addConstraint(Sketcher.Constraint("DistanceX", 1, 1, 1, 2, Q("22 mm")))
sketch25.addConstraint(Sketcher.Constraint("DistanceY", 0, 2, 0, 1, Q("6 mm")))
sketch25.addConstraint(Sketcher.Constraint("DistanceX", -1, 1, 0, 2, Q("39 mm")))
sketch25.addConstraint(Sketcher.Constraint("DistanceY", -1, 1, 0, 2, Q("62 mm")))
pad25 = doc.addObject("PartDesign::Pad", "Pad024")
body35.addObject(pad25)
pad25.Profile = sketch25
pad25.Length = 2
body36 = doc.addObject("PartDesign::Body", "Body035")
body36.AllowCompound = True

# Sketch on XY plane
sketch26 = doc.addObject("Sketcher::SketchObject", "Sketch025")
body36.addObject(sketch26)
sketch26.AttachmentSupport = (doc.getObject("XY_Plane035"), [""])
sketch26.MapMode = "FlatFace"
sketch26.AttachmentOffset = App.Placement(V(0, 0, 54), App.Rotation())
add_polygon(sketch26, [(-64, 68), (-64, 62), (-42, 62), (-42, 68)])  # lines 0-3
sketch26.addConstraint(Sketcher.Constraint("Vertical", 0))
sketch26.addConstraint(Sketcher.Constraint("Horizontal", 1))
sketch26.addConstraint(Sketcher.Constraint("Vertical", 2))
sketch26.addConstraint(Sketcher.Constraint("Horizontal", 3))
sketch26.addConstraint(Sketcher.Constraint("DistanceX", 1, 1, 1, 2, Q("22 mm")))
sketch26.addConstraint(Sketcher.Constraint("DistanceY", 0, 2, 0, 1, Q("6 mm")))
sketch26.addConstraint(Sketcher.Constraint("DistanceX", 0, 2, -1, 1, Q("64 mm")))
sketch26.addConstraint(Sketcher.Constraint("DistanceY", -1, 1, 0, 2, Q("62 mm")))
pad26 = doc.addObject("PartDesign::Pad", "Pad025")
body36.addObject(pad26)
pad26.Profile = sketch26
pad26.Length = 2
doc.recompute()

boolean31 = doc.addObject("PartDesign::Boolean", "Boolean030")
body36.addObject(boolean31)
boolean31.Type = "Fuse"
boolean31.addObjects([body35])
body37 = doc.addObject("PartDesign::Body", "Body036")

# Sketch on XY plane
sketch27 = doc.addObject("Sketcher::SketchObject", "Sketch026")
body37.addObject(sketch27)
sketch27.AttachmentSupport = (doc.getObject("XY_Plane036"), [""])
sketch27.MapMode = "FlatFace"
sketch27.AttachmentOffset = App.Placement(V(0, 0, 8), App.Rotation())
add_polygon(sketch27, [(-45, 228), (-45, 28), (-25, 28), (-25, 228)])  # lines 0-3
sketch27.addConstraint(Sketcher.Constraint("Vertical", 0))
sketch27.addConstraint(Sketcher.Constraint("Horizontal", 1))
sketch27.addConstraint(Sketcher.Constraint("Vertical", 2))
sketch27.addConstraint(Sketcher.Constraint("Horizontal", 3))
sketch27.addConstraint(Sketcher.Constraint("DistanceX", 1, 1, 1, 2, Q("20 mm")))
sketch27.addConstraint(Sketcher.Constraint("DistanceY", 0, 2, 0, 1, Q("200 mm")))
sketch27.addConstraint(Sketcher.Constraint("DistanceX", 0, 2, -1, 1, Q("45 mm")))
sketch27.addConstraint(Sketcher.Constraint("DistanceY", -1, 1, 0, 2, Q("28 mm")))
pad27 = doc.addObject("PartDesign::Pad", "Pad026")
body37.addObject(pad27)
pad27.Profile = sketch27
pad27.Length = 20
body38 = doc.addObject("PartDesign::Body", "Body037")
body38.AllowCompound = True

# Sketch on XY plane
sketch28 = doc.addObject("Sketcher::SketchObject", "Sketch027")
body38.addObject(sketch28)
sketch28.AttachmentSupport = (doc.getObject("XY_Plane037"), [""])
sketch28.MapMode = "FlatFace"
sketch28.AttachmentOffset = App.Placement(V(0, 0, 8), App.Rotation())
add_polygon(sketch28, [(25, 228), (25, 28), (45, 28), (45, 228)])  # lines 0-3
sketch28.addConstraint(Sketcher.Constraint("Vertical", 0))
sketch28.addConstraint(Sketcher.Constraint("Horizontal", 1))
sketch28.addConstraint(Sketcher.Constraint("Vertical", 2))
sketch28.addConstraint(Sketcher.Constraint("Horizontal", 3))
sketch28.addConstraint(Sketcher.Constraint("DistanceX", 1, 1, 1, 2, Q("20 mm")))
sketch28.addConstraint(Sketcher.Constraint("DistanceY", 0, 2, 0, 1, Q("200 mm")))
sketch28.addConstraint(Sketcher.Constraint("DistanceX", -1, 1, 0, 2, Q("25 mm")))
sketch28.addConstraint(Sketcher.Constraint("DistanceY", -1, 1, 0, 2, Q("28 mm")))
pad28 = doc.addObject("PartDesign::Pad", "Pad027")
body38.addObject(pad28)
pad28.Profile = sketch28
pad28.Length = 20
doc.recompute()

boolean32 = doc.addObject("PartDesign::Boolean", "Boolean031")
body38.addObject(boolean32)
boolean32.Type = "Fuse"
boolean32.addObjects([body37])
body39 = doc.addObject("PartDesign::Body", "Body038")
body39.AllowCompound = True
doc.recompute()

body38.Placement = App.Placement(V(0, 2, 32), App.Rotation(V(0, 0, 1), 0))
boolean33 = doc.addObject("PartDesign::Boolean", "Boolean032")
body39.addObject(boolean33)
boolean33.Type = "Fuse"
boolean33.addObjects([body38])
body40 = doc.addObject("PartDesign::Body", "Body039")

# Sketch on XY plane
sketch29 = doc.addObject("Sketcher::SketchObject", "Sketch028")
body40.addObject(sketch29)
sketch29.AttachmentSupport = (doc.getObject("XY_Plane039"), [""])
sketch29.MapMode = "FlatFace"
sketch29.AttachmentOffset = App.Placement(V(0, 0, 42.5), App.Rotation())
sketch29.addGeometry(Part.Circle(V(-48, 65, 0), V(0, 0, 1), 1.5), False)
sketch29.addConstraint(Sketcher.Constraint("Diameter", 0, Q("3 mm")))
sketch29.addConstraint(Sketcher.Constraint("DistanceX", 0, 3, -1, 1, Q("48 mm")))
sketch29.addConstraint(Sketcher.Constraint("DistanceY", -1, 1, 0, 3, Q("65 mm")))
pad29 = doc.addObject("PartDesign::Pad", "Pad028")
body40.addObject(pad29)
pad29.Profile = sketch29
pad29.Length = 30
body41 = doc.addObject("PartDesign::Body", "Body040")
body41.AllowCompound = True

# Sketch on XY plane
sketch30 = doc.addObject("Sketcher::SketchObject", "Sketch029")
body41.addObject(sketch30)
sketch30.AttachmentSupport = (doc.getObject("XY_Plane040"), [""])
sketch30.MapMode = "FlatFace"
sketch30.AttachmentOffset = App.Placement(V(0, 0, 42.5), App.Rotation())
sketch30.addGeometry(Part.Circle(V(48, 65, 0), V(0, 0, 1), 1.5), False)
sketch30.addConstraint(Sketcher.Constraint("Diameter", 0, Q("3 mm")))
sketch30.addConstraint(Sketcher.Constraint("DistanceX", -1, 1, 0, 3, Q("48 mm")))
sketch30.addConstraint(Sketcher.Constraint("DistanceY", -1, 1, 0, 3, Q("65 mm")))
pad30 = doc.addObject("PartDesign::Pad", "Pad029")
body41.addObject(pad30)
pad30.Profile = sketch30
pad30.Length = 30
doc.recompute()

boolean34 = doc.addObject("PartDesign::Boolean", "Boolean033")
body41.addObject(boolean34)
boolean34.Type = "Fuse"
boolean34.addObjects([body40])
body42 = doc.addObject("PartDesign::Body", "Body041")

# Sketch on YZ plane
sketch31 = doc.addObject("Sketcher::SketchObject", "Sketch030")
body42.addObject(sketch31)
sketch31.AttachmentSupport = (doc.getObject("YZ_Plane041"), [""])
sketch31.MapMode = "FlatFace"
sketch31.AttachmentOffset = App.Placement(V(0, 0, -80), App.Rotation())
sketch31.addGeometry(Part.Circle(V(38, 18, 0), V(0, 0, 1), 2.5), False)
sketch31.addConstraint(Sketcher.Constraint("Diameter", 0, Q("5 mm")))
sketch31.addConstraint(Sketcher.Constraint("DistanceX", -1, 1, 0, 3, Q("38 mm")))
sketch31.addConstraint(Sketcher.Constraint("DistanceY", -1, 1, 0, 3, Q("18 mm")))
pad31 = doc.addObject("PartDesign::Pad", "Pad030")
body42.addObject(pad31)
pad31.Profile = sketch31
pad31.Length = 40
body43 = doc.addObject("PartDesign::Body", "Body042")

# Sketch on YZ plane
sketch32 = doc.addObject("Sketcher::SketchObject", "Sketch031")
body43.addObject(sketch32)
sketch32.AttachmentSupport = (doc.getObject("YZ_Plane042"), [""])
sketch32.MapMode = "FlatFace"
sketch32.AttachmentOffset = App.Placement(V(0, 0, 41), App.Rotation())
sketch32.addGeometry(Part.Circle(V(38, 18, 0), V(0, 0, 1), 2.5), False)
sketch32.addConstraint(Sketcher.Constraint("Diameter", 0, Q("5 mm")))
sketch32.addConstraint(Sketcher.Constraint("DistanceX", -1, 1, 0, 3, Q("38 mm")))
sketch32.addConstraint(Sketcher.Constraint("DistanceY", -1, 1, 0, 3, Q("18 mm")))
pad32 = doc.addObject("PartDesign::Pad", "Pad031")
body43.addObject(pad32)
pad32.Profile = sketch32
pad32.Length = 30
body44 = doc.addObject("PartDesign::Body", "Body043")
body44.AllowCompound = True

# Sketch on YZ plane
sketch33 = doc.addObject("Sketcher::SketchObject", "Sketch032")
body44.addObject(sketch33)
sketch33.AttachmentSupport = (doc.getObject("YZ_Plane043"), [""])
sketch33.MapMode = "FlatFace"
sketch33.AttachmentOffset = App.Placement(V(0, 0, -62), App.Rotation())
sketch33.addGeometry(Part.Circle(V(58, 18, 0), V(0, 0, 1), 2.5), False)
sketch33.addConstraint(Sketcher.Constraint("Diameter", 0, Q("5 mm")))
sketch33.addConstraint(Sketcher.Constraint("DistanceX", -1, 1, 0, 3, Q("58 mm")))
sketch33.addConstraint(Sketcher.Constraint("DistanceY", -1, 1, 0, 3, Q("18 mm")))
pad33 = doc.addObject("PartDesign::Pad", "Pad032")
body44.addObject(pad33)
pad33.Profile = sketch33
pad33.Length = 160
doc.recompute()

boolean35 = doc.addObject("PartDesign::Boolean", "Boolean034")
body44.addObject(boolean35)
boolean35.Type = "Fuse"
boolean35.addObjects([body42])
doc.recompute()

boolean36 = doc.addObject("PartDesign::Boolean", "Boolean035")
body44.addObject(boolean36)
boolean36.Type = "Fuse"
boolean36.addObjects([body43])
body45 = doc.addObject("PartDesign::Body", "Body044")
body45.AllowCompound = True
doc.recompute()

body44.Placement = App.Placement(V(-1, 2, 31), App.Rotation(V(0, 0, 1), 0))
boolean37 = doc.addObject("PartDesign::Boolean", "Boolean036")
body45.addObject(boolean37)
boolean37.Type = "Fuse"
boolean37.addObjects([body44])
body46 = doc.addObject("PartDesign::Body", "Body045")

# Sketch on XY plane
sketch34 = doc.addObject("Sketcher::SketchObject", "Sketch033")
body46.addObject(sketch34)
sketch34.AttachmentSupport = (doc.getObject("XY_Plane045"), [""])
sketch34.MapMode = "FlatFace"
sketch34.AttachmentOffset = App.Placement(V(0, 0, 37), App.Rotation())
add_polygon(sketch34, [(-51, 72), (-51, 0), (-37, 0), (-37, 72)])  # lines 0-3
sketch34.addConstraint(Sketcher.Constraint("Vertical", 0))
sketch34.addConstraint(Sketcher.Constraint("Horizontal", 1))
sketch34.addConstraint(Sketcher.Constraint("Vertical", 2))
sketch34.addConstraint(Sketcher.Constraint("Horizontal", 3))
sketch34.addConstraint(Sketcher.Constraint("PointOnObject", 0, 2, -1))
sketch34.addConstraint(Sketcher.Constraint("DistanceX", 1, 1, 1, 2, Q("14 mm")))
sketch34.addConstraint(Sketcher.Constraint("DistanceY", 0, 2, 0, 1, Q("72 mm")))
sketch34.addConstraint(Sketcher.Constraint("DistanceX", 0, 2, -1, 1, Q("51 mm")))
pad34 = doc.addObject("PartDesign::Pad", "Pad033")
body46.addObject(pad34)
pad34.Profile = sketch34
pad34.Length = 23
body47 = doc.addObject("PartDesign::Body", "Body046")
body47.AllowCompound = True

# Sketch on XY plane
sketch35 = doc.addObject("Sketcher::SketchObject", "Sketch034")
body47.addObject(sketch35)
sketch35.AttachmentSupport = (doc.getObject("XY_Plane046"), [""])
sketch35.MapMode = "FlatFace"
sketch35.AttachmentOffset = App.Placement(V(0, 0, 37), App.Rotation())
add_polygon(sketch35, [(37, 72), (37, 0), (51, 0), (51, 72)])  # lines 0-3
sketch35.addConstraint(Sketcher.Constraint("Vertical", 0))
sketch35.addConstraint(Sketcher.Constraint("Horizontal", 1))
sketch35.addConstraint(Sketcher.Constraint("Vertical", 2))
sketch35.addConstraint(Sketcher.Constraint("Horizontal", 3))
sketch35.addConstraint(Sketcher.Constraint("PointOnObject", 0, 2, -1))
sketch35.addConstraint(Sketcher.Constraint("DistanceX", 1, 1, 1, 2, Q("14 mm")))
sketch35.addConstraint(Sketcher.Constraint("DistanceY", 0, 2, 0, 1, Q("72 mm")))
sketch35.addConstraint(Sketcher.Constraint("DistanceX", -1, 1, 0, 2, Q("37 mm")))
pad35 = doc.addObject("PartDesign::Pad", "Pad034")
body47.addObject(pad35)
pad35.Profile = sketch35
pad35.Length = 23
doc.recompute()

boolean38 = doc.addObject("PartDesign::Boolean", "Boolean037")
body47.addObject(boolean38)
boolean38.Type = "Fuse"
boolean38.addObjects([body46])
doc.recompute()

boolean39 = doc.addObject("PartDesign::Boolean", "Boolean038")
body47.addObject(boolean39)
boolean39.Type = "Cut"
boolean39.addObjects([body45])
doc.recompute()

boolean40 = doc.addObject("PartDesign::Boolean", "Boolean039")
body47.addObject(boolean40)
boolean40.Type = "Cut"
boolean40.addObjects([body41])
doc.recompute()

boolean41 = doc.addObject("PartDesign::Boolean", "Boolean040")
body47.addObject(boolean41)
boolean41.Type = "Cut"
boolean41.addObjects([body39])
doc.recompute()

boolean42 = doc.addObject("PartDesign::Boolean", "Boolean041")
body47.addObject(boolean42)
boolean42.Type = "Cut"
boolean42.addObjects([body36])
doc.recompute()

boolean43 = doc.addObject("PartDesign::Boolean", "Boolean042")
body47.addObject(boolean43)
boolean43.Type = "Cut"
boolean43.addObjects([body34])
doc.recompute()

boolean44 = doc.addObject("PartDesign::Boolean", "Boolean043")
body47.addObject(boolean44)
boolean44.Type = "Cut"
boolean44.addObjects([body21])
doc.recompute()

boolean45 = doc.addObject("PartDesign::Boolean", "Boolean044")
body47.addObject(boolean45)
boolean45.Type = "Cut"
boolean45.addObjects([body8])
doc.recompute()

boolean46 = doc.addObject("PartDesign::Boolean", "Boolean045")
body47.addObject(boolean46)
boolean46.Type = "Cut"
boolean46.addObjects([body4])
doc.recompute()

chamfer = doc.addObject("PartDesign::Chamfer", "Chamfer")
body47.addObject(chamfer)
chamfer.Base = (boolean46, edges_at(boolean46, [(51, 72, 48.5), (-51, 72, 48.5)]))
chamfer.Size = 2

doc.recompute()
